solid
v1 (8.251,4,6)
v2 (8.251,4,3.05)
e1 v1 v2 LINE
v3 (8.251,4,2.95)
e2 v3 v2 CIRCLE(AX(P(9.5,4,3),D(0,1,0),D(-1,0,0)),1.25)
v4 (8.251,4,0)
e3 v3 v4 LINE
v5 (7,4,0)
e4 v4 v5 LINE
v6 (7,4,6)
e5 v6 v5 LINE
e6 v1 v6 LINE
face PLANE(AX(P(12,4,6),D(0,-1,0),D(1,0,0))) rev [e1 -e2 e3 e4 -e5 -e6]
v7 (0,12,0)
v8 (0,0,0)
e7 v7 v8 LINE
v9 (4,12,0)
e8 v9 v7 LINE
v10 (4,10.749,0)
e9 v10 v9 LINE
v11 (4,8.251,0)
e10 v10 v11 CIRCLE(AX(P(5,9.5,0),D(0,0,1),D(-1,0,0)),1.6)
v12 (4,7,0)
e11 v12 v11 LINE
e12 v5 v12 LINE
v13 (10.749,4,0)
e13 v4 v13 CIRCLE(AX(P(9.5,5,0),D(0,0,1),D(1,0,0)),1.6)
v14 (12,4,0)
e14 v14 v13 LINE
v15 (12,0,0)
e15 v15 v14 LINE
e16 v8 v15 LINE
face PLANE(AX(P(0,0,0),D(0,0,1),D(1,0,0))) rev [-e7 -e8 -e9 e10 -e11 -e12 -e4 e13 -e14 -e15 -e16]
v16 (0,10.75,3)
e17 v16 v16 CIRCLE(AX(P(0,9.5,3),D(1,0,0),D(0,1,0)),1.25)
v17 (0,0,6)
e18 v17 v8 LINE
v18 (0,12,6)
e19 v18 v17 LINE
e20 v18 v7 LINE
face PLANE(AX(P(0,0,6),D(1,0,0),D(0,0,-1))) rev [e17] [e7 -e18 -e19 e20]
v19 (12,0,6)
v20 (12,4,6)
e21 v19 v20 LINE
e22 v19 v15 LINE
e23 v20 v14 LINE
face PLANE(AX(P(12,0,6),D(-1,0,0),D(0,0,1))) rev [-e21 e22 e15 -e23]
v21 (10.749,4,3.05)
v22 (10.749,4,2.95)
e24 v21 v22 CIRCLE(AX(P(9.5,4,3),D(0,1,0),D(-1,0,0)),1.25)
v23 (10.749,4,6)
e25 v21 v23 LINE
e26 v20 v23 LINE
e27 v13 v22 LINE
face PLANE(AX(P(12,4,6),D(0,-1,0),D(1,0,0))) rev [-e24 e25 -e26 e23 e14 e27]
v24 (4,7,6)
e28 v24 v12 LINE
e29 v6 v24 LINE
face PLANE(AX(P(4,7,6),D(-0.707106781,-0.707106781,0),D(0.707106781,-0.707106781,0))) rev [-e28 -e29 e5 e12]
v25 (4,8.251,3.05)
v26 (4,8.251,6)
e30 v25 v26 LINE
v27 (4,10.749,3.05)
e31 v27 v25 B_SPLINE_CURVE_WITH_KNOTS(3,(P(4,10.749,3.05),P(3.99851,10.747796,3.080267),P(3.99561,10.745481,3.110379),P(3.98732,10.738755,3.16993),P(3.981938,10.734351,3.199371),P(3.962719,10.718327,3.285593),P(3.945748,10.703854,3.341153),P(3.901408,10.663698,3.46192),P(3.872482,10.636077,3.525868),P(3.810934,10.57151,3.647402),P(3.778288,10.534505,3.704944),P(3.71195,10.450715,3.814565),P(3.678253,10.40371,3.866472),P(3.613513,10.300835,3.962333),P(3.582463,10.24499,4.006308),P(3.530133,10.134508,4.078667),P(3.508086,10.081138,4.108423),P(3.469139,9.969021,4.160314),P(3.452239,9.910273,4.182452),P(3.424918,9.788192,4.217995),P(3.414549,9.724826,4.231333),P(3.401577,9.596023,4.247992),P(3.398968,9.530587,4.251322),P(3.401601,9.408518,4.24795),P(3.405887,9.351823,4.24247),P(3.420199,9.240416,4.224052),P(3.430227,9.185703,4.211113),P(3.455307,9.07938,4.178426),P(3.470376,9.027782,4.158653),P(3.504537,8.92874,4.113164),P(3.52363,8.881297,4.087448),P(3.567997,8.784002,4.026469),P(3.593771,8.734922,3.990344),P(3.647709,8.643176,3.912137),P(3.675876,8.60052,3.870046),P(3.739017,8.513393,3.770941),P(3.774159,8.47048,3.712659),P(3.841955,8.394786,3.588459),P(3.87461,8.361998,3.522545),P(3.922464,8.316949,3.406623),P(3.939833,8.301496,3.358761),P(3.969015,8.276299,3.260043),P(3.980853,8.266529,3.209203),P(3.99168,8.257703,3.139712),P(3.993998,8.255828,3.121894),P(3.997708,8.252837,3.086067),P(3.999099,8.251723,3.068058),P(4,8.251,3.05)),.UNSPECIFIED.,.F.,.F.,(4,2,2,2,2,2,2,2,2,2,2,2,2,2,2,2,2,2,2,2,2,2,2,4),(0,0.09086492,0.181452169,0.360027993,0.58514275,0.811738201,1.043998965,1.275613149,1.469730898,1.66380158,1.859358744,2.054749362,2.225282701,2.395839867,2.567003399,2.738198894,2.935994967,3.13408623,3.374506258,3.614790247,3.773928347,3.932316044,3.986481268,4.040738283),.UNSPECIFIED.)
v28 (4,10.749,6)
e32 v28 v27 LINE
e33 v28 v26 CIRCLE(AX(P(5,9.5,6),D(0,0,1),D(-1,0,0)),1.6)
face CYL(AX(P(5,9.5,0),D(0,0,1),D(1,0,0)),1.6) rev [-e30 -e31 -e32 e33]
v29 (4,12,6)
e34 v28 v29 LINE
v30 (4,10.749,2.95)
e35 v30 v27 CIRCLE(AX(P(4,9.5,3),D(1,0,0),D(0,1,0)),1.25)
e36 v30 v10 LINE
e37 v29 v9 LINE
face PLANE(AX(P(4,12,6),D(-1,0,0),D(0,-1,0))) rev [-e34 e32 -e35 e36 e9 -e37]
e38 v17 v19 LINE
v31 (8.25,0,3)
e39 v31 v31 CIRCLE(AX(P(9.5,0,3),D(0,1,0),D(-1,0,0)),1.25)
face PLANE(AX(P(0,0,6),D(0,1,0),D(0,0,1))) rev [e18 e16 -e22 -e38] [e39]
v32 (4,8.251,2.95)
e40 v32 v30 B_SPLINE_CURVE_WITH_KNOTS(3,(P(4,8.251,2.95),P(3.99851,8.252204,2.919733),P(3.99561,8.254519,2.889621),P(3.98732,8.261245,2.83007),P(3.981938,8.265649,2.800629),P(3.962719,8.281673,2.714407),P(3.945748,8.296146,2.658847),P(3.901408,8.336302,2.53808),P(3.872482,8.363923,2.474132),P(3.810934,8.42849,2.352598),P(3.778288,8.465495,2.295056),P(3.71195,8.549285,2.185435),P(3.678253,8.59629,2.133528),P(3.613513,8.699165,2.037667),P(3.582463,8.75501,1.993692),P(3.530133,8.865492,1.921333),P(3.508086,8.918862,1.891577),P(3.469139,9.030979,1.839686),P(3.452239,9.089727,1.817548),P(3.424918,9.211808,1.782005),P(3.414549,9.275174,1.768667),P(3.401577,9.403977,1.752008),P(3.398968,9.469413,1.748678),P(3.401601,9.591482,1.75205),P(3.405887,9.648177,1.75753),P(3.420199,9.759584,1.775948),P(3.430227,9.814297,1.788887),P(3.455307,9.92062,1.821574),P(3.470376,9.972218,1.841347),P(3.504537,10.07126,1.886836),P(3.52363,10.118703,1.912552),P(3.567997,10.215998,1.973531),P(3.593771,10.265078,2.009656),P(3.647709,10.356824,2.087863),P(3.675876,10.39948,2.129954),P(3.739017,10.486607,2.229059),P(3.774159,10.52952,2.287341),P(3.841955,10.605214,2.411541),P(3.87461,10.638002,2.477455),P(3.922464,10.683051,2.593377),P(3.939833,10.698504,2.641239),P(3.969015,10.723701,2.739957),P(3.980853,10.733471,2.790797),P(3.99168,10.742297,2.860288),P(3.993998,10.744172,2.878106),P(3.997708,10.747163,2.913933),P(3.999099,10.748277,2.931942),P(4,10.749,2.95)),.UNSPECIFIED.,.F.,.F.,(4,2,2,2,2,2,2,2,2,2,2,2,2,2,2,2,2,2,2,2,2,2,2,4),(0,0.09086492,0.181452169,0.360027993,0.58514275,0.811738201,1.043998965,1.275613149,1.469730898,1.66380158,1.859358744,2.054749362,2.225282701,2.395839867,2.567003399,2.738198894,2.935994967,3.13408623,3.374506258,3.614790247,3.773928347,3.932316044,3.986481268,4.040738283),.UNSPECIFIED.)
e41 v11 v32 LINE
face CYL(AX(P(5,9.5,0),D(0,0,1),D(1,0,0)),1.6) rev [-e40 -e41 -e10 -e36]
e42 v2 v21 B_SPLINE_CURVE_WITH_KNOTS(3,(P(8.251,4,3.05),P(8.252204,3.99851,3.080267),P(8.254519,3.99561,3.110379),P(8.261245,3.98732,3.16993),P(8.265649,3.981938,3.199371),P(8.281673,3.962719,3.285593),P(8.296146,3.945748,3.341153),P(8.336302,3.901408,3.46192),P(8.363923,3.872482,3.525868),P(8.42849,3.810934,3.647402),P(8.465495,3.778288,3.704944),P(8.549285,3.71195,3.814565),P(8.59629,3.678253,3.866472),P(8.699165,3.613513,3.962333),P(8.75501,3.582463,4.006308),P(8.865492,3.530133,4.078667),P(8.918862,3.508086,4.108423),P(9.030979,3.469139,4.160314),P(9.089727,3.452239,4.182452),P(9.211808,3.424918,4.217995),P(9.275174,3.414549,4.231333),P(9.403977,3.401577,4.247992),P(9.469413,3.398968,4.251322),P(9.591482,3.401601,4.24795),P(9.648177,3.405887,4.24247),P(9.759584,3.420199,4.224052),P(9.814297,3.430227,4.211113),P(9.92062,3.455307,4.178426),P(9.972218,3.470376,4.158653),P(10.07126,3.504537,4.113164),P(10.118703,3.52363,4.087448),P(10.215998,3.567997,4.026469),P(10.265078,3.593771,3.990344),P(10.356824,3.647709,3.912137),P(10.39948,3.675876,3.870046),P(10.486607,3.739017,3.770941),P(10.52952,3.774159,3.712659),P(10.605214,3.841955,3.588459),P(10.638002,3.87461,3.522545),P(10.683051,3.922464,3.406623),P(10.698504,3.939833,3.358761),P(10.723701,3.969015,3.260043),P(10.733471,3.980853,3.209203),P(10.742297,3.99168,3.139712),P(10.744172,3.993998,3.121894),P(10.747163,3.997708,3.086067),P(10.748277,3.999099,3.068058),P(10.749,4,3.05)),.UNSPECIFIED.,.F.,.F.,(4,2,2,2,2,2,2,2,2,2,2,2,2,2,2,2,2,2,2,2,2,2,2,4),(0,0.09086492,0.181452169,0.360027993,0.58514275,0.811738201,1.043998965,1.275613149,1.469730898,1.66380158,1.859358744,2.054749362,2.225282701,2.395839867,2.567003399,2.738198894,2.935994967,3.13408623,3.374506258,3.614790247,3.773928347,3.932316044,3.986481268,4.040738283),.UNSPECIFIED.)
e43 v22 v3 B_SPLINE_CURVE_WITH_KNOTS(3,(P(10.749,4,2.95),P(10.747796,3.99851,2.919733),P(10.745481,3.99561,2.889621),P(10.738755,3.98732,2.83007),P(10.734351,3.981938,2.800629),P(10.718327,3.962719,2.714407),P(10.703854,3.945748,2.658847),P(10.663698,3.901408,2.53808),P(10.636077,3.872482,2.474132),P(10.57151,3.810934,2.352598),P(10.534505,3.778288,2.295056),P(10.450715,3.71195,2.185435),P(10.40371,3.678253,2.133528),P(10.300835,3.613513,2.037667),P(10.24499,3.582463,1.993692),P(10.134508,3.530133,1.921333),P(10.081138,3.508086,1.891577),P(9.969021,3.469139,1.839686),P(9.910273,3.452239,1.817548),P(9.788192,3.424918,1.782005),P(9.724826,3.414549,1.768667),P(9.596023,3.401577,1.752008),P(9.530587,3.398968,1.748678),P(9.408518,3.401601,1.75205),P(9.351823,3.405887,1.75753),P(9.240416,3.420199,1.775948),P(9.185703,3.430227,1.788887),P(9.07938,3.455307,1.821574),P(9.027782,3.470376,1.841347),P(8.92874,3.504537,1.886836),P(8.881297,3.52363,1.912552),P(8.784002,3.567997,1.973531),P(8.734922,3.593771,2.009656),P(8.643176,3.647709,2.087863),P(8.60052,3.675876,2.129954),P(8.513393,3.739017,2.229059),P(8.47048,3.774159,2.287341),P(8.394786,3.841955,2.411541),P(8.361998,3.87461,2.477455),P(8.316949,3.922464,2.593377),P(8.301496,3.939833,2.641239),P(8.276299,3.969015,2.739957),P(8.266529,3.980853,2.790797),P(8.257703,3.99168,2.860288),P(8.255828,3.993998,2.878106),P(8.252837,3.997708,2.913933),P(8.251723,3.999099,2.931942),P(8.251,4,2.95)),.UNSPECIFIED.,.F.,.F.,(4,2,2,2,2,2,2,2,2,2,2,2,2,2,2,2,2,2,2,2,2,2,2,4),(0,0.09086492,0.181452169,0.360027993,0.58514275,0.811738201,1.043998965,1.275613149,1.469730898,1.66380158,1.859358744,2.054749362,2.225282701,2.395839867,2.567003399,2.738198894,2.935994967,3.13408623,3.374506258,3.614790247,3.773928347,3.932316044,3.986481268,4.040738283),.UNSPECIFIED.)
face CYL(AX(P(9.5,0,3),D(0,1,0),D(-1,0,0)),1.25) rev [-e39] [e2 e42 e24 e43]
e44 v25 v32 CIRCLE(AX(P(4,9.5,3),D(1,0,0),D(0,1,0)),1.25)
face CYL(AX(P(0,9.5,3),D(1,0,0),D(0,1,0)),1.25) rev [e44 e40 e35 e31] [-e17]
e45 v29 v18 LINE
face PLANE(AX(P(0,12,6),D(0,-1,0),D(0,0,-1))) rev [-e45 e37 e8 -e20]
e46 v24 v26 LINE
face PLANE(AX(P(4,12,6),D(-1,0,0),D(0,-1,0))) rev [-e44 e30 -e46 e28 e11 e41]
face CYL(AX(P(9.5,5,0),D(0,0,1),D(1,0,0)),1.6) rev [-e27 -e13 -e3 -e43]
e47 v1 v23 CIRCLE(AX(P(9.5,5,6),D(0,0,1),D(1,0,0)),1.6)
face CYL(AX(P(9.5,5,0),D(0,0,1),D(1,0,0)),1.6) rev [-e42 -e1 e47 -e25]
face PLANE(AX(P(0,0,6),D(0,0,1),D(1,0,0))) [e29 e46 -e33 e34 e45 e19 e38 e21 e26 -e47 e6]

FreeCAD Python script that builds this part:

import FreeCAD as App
import Part
import Sketcher

V = App.Vector


def add_polygon(sketch, points):
    """Adds a closed chain of lines whose ends are joined by coincident constraints."""
    first, n = sketch.GeometryCount, len(points)
    for a, b in zip(points, points[1:] + points[:1]):
        sketch.addGeometry(Part.LineSegment(App.Vector(*a, 0), App.Vector(*b, 0)), False)
    for i in range(n):
        sketch.addConstraint(Sketcher.Constraint("Coincident", first + i, 2, first + (i + 1) % n, 1))

doc = App.newDocument("Part")
body = doc.addObject("PartDesign::Body", "Body")

# Sketch on XY plane
sketch1 = doc.addObject("Sketcher::SketchObject", "Sketch")
body.addObject(sketch1)
sketch1.AttachmentSupport = (doc.XY_Plane, [""])
sketch1.MapMode = "FlatFace"
add_polygon(sketch1, [(0, 12), (0, 0), (12, 0), (12, 4), (7, 4), (4, 7), (4, 12)])  # lines 0-6
sketch1.addConstraint(Sketcher.Constraint("Vertical", 0))
sketch1.addConstraint(Sketcher.Constraint("Horizontal", 1))
sketch1.addConstraint(Sketcher.Constraint("Vertical", 2))
sketch1.addConstraint(Sketcher.Constraint("Horizontal", 3))
sketch1.addConstraint(Sketcher.Constraint("Vertical", 5))
sketch1.addConstraint(Sketcher.Constraint("Horizontal", 6))
sketch1.addConstraint(Sketcher.Constraint("Coincident", 0, 2, -1, 1))
sketch1.addConstraint(Sketcher.Constraint("Equal", 1, 0))
sketch1.addConstraint(Sketcher.Constraint("Equal", 6, 2))
sketch1.addConstraint(Sketcher.Constraint("Equal", 3, 5))
sketch1.addConstraint(Sketcher.Constraint("DistanceX", 1, 1, 1, 2, 12.0))
sketch1.addConstraint(Sketcher.Constraint("DistanceX", 3, 2, 3, 1, 5.0))
sketch1.addConstraint(Sketcher.Constraint("DistanceX", 6, 2, 6, 1, 4.0))
pad1 = doc.addObject("PartDesign::Pad", "Pad")
body.addObject(pad1)
pad1.Profile = sketch1
pad1.Length = 6

# Sketch on XZ plane
sketch2 = doc.addObject("Sketcher::SketchObject", "Sketch001")
body.addObject(sketch2)
sketch2.AttachmentSupport = (doc.XZ_Plane, [""])
sketch2.MapMode = "FlatFace"
sketch2.AttachmentOffset = App.Placement(V(0, 0, -4), App.Rotation())
sketch2.addGeometry(Part.Circle(V(9.5, 3, 0), V(0, 0, 1), 1.2), False)
sketch2.addConstraint(Sketcher.Constraint("Diameter", 0, 2.5))
sketch2.addConstraint(Sketcher.Constraint("DistanceY", -1, 1, 0, 3, 3.0))
sketch2.addConstraint(Sketcher.Constraint("DistanceX", -1, 1, 0, 3, 9.5))
pocket1 = doc.addObject("PartDesign::Pocket", "Pocket")
body.addObject(pocket1)
pocket1.Profile = sketch2
pocket1.Length = 4
pocket1.Reversed = True

# Sketch on YZ plane
sketch3 = doc.addObject("Sketcher::SketchObject", "Sketch002")
body.addObject(sketch3)
sketch3.AttachmentSupport = (doc.YZ_Plane, [""])
sketch3.MapMode = "FlatFace"
sketch3.AttachmentOffset = App.Placement(V(0, 0, 4), App.Rotation())
sketch3.addGeometry(Part.Circle(V(9.5, 3, 0), V(0, 0, 1), 1.2), False)
sketch3.addConstraint(Sketcher.Constraint("Diameter", 0, 2.5))
sketch3.addConstraint(Sketcher.Constraint("DistanceY", -1, 1, 0, 3, 3.0))
sketch3.addConstraint(Sketcher.Constraint("DistanceX", -1, 1, 0, 3, 9.5))
pocket2 = doc.addObject("PartDesign::Pocket", "Pocket001")
body.addObject(pocket2)
pocket2.Profile = sketch3
pocket2.Length = 4

# Sketch on XY plane
sketch4 = doc.addObject("Sketcher::SketchObject", "Sketch003")
body.addObject(sketch4)
sketch4.AttachmentSupport = (doc.XY_Plane, [""])
sketch4.MapMode = "FlatFace"
sketch4.AttachmentOffset = App.Placement(V(0, 0, 6), App.Rotation())
sketch4.addGeometry(Part.Circle(V(9.5, 5, 0), V(0, 0, 1), 1.6), False)
sketch4.addGeometry(Part.Circle(V(5, 9.5, 0), V(0, 0, 1), 1.6), False)
sketch4.addConstraint(Sketcher.Constraint("Equal", 0, 1))
sketch4.addConstraint(Sketcher.Constraint("Diameter", 0, 3.2))
sketch4.addConstraint(Sketcher.Constraint("DistanceY", -1, 1, 0, 3, 5.0))
sketch4.addConstraint(Sketcher.Constraint("DistanceX", -1, 1, 1, 3, 5.0))
sketch4.addConstraint(Sketcher.Constraint("DistanceX", -1, 1, 0, 3, 9.5))
sketch4.addConstraint(Sketcher.Constraint("DistanceY", -1, 1, 1, 3, 9.5))
pocket3 = doc.addObject("PartDesign::Pocket", "Pocket002")
body.addObject(pocket3)
pocket3.Profile = sketch4
pocket3.Length = 6

doc.recompute()
